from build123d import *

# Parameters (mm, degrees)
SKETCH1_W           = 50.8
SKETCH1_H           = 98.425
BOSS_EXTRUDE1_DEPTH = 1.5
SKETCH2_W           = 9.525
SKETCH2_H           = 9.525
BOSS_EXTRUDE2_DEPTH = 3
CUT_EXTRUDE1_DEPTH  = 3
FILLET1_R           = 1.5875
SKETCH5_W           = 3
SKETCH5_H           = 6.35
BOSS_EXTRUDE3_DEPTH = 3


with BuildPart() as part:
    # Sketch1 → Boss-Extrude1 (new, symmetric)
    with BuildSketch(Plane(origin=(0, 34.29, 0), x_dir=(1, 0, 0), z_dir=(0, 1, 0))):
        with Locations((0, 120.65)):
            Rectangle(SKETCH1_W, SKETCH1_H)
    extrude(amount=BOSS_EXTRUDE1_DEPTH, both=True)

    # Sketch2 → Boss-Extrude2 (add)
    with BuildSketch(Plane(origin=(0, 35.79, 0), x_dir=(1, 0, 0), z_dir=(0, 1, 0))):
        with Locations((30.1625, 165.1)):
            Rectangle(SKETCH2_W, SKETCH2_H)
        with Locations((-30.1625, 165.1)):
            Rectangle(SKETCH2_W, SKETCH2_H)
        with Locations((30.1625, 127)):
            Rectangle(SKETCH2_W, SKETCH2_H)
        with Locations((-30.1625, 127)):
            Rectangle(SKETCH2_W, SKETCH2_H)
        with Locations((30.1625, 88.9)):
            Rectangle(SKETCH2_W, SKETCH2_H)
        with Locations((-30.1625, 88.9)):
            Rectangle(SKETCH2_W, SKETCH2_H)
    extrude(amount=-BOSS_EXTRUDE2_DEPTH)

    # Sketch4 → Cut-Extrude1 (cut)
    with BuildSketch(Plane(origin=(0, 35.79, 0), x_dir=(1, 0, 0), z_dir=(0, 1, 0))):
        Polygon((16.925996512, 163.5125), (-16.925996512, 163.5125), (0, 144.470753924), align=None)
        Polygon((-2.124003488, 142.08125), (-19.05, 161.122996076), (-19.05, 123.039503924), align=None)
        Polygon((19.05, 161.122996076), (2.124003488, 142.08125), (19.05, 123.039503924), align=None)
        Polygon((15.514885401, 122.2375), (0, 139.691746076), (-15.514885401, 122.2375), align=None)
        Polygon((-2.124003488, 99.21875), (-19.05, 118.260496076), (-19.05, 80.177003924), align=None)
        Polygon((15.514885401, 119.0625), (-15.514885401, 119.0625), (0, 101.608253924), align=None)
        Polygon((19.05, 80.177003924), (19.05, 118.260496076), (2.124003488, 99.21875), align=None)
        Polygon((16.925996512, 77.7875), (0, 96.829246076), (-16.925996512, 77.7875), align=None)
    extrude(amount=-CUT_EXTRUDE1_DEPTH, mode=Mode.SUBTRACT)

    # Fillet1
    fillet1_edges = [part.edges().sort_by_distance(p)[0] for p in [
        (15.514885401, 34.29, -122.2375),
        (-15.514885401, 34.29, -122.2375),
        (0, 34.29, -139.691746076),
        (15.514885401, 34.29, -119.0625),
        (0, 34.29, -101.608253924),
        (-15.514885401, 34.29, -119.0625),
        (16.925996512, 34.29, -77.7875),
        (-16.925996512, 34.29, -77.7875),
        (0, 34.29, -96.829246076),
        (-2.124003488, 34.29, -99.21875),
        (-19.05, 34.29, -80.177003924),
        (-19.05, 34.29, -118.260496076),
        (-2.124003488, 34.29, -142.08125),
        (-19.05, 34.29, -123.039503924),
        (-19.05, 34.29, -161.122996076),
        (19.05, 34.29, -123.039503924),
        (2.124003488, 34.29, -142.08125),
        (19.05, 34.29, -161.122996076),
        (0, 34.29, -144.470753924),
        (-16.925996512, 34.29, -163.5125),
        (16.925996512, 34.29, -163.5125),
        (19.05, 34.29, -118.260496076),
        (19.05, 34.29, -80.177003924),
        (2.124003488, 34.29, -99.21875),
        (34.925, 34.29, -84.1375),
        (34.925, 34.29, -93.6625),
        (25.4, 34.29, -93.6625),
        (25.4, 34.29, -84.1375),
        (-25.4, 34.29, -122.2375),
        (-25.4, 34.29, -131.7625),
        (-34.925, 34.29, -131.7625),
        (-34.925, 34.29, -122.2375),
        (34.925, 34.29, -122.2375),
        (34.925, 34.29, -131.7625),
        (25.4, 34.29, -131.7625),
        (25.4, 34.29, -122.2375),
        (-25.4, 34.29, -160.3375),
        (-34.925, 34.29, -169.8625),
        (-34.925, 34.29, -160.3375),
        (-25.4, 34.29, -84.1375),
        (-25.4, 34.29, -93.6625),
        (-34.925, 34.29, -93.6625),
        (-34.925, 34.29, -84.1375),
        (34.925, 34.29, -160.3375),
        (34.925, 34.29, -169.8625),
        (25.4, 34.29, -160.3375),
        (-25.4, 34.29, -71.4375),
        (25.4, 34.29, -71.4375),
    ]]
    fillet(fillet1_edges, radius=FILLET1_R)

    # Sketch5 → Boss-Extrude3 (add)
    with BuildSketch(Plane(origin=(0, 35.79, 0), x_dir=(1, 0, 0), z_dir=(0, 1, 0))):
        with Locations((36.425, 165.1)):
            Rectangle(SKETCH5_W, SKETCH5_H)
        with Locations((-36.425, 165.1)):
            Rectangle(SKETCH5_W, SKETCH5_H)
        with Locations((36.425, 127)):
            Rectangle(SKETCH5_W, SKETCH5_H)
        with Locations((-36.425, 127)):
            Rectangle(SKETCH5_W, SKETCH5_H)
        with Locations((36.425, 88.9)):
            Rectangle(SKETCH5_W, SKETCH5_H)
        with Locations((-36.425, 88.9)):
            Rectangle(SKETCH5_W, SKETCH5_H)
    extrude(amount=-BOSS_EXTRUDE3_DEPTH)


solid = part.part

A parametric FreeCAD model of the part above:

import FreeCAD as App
import Part
import Sketcher

V = App.Vector
Q = App.Units.Quantity


def edges_at(feature, points):
    """Names of the edges that pass closest to the given points."""
    edges = feature.Shape.Edges
    near = lambda p: min(range(len(edges)), key=lambda i: edges[i].distToShape(Part.Vertex(*p))[0])
    return sorted({f"Edge{near(p) + 1}" for p in points})


def add_polygon(sketch, points):
    """Adds a closed chain of lines whose ends are joined by coincident constraints."""
    first, n = sketch.GeometryCount, len(points)
    for a, b in zip(points, points[1:] + points[:1]):
        sketch.addGeometry(Part.LineSegment(App.Vector(*a, 0), App.Vector(*b, 0)), False)
    for i in range(n):
        sketch.addConstraint(Sketcher.Constraint("Coincident", first + i, 2, first + (i + 1) % n, 1))

doc = App.newDocument("Part")
body = doc.addObject("PartDesign::Body", "Body")

# Sketch on XZ plane
sketch1 = body.newObject("Sketcher::SketchObject", "Sketch")
sketch1.AttachmentSupport = (doc.getObject("XZ_Plane"), [""])
sketch1.MapMode = "FlatFace"
sketch1.AttachmentOffset = App.Placement(V(0, 0, -1.35 * 25.4), App.Rotation())
add_polygon(sketch1, [(-25, -170), (-25, -71), (25, -71), (25, -170)])  # lines 0-3
sketch1.addConstraint([
    Sketcher.Constraint("Vertical", 0),
    Sketcher.Constraint("Horizontal", 1),
    Sketcher.Constraint("Vertical", 2),
    Sketcher.Constraint("Horizontal", 3),
    Sketcher.Constraint("DistanceX", 1, 1, 1, 2, Q("2 in")),
    Sketcher.Constraint("DistanceX", 0, 2, -1, 1, Q("1 in")),
    Sketcher.Constraint("DistanceY", 0, 1, 0, 2, Q("3.875 in")),
    Sketcher.Constraint("DistanceY", 0, 2, -1, 1, Q("2.8125 in")),
])
pad1 = body.newObject("PartDesign::Pad", "Pad")
pad1.Profile = sketch1
pad1.Length = 3
pad1.Midplane = True

# Sketch on XZ plane
sketch2 = body.newObject("Sketcher::SketchObject", "Sketch001")
sketch2.AttachmentSupport = (doc.getObject("XZ_Plane"), [""])
sketch2.MapMode = "FlatFace"
sketch2.AttachmentOffset = App.Placement(V(0, 0, -35.79), App.Rotation())
add_polygon(sketch2, [(25, -170), (25, -160), (35, -160), (35, -170)])  # lines 0-3
add_polygon(sketch2, [(-35, -170), (-35, -160), (-25, -160), (-25, -170)])  # lines 4-7
add_polygon(sketch2, [(25, -132), (25, -122), (35, -122), (35, -132)])  # lines 8-11
add_polygon(sketch2, [(-35, -132), (-35, -122), (-25, -122), (-25, -132)])  # lines 12-15
add_polygon(sketch2, [(25, -94), (25, -84), (35, -84), (35, -94)])  # lines 16-19
add_polygon(sketch2, [(-35, -94), (-35, -84), (-25, -84), (-25, -94)])  # lines 20-23
sketch2.addConstraint([
    Sketcher.Constraint("Vertical", 0),
    Sketcher.Constraint("Horizontal", 1),
    Sketcher.Constraint("Vertical", 2),
    Sketcher.Constraint("Horizontal", 3),
    Sketcher.Constraint("Vertical", 4),
    Sketcher.Constraint("Horizontal", 5),
    Sketcher.Constraint("Vertical", 6),
    Sketcher.Constraint("Horizontal", 7),
    Sketcher.Constraint("Vertical", 8),
    Sketcher.Constraint("Horizontal", 9),
    Sketcher.Constraint("Vertical", 10),
    Sketcher.Constraint("Horizontal", 11),
    Sketcher.Constraint("Vertical", 12),
    Sketcher.Constraint("Horizontal", 13),
    Sketcher.Constraint("Vertical", 14),
    Sketcher.Constraint("Horizontal", 15),
    Sketcher.Constraint("Vertical", 16),
    Sketcher.Constraint("Horizontal", 17),
    Sketcher.Constraint("Vertical", 18),
    Sketcher.Constraint("Horizontal", 19),
    Sketcher.Constraint("Vertical", 20),
    Sketcher.Constraint("Horizontal", 21),
    Sketcher.Constraint("Vertical", 22),
    Sketcher.Constraint("Horizontal", 23),
    Sketcher.Constraint("Symmetric", 1, 2, 4, 2, -2),
    Sketcher.Constraint("Symmetric", 3, 2, 6, 2, -2),
    Sketcher.Constraint("Symmetric", 9, 2, 12, 2, -2),
    Sketcher.Constraint("Symmetric", 11, 2, 14, 2, -2),
    Sketcher.Constraint("Symmetric", 17, 2, 20, 2, -2),
    Sketcher.Constraint("Symmetric", 19, 2, 22, 2, -2),
    Sketcher.Constraint("Vertical", 3, 2, 8, 2),
    Sketcher.Constraint("Vertical", 2, 2, 9, 2),
    Sketcher.Constraint("Vertical", 11, 2, 16, 2),
    Sketcher.Constraint("Vertical", 10, 2, 17, 2),
    Sketcher.Constraint("Equal", 23, 0),
    Sketcher.Constraint("Equal", 6, 8),
    Sketcher.Constraint("Equal", 14, 16),
    Sketcher.Constraint("DistanceX", -1, 1, 0, 2, Q("1 in")),
    Sketcher.Constraint("DistanceY", 0, 2, 8, 2, Q("1.5 in")),
    Sketcher.Constraint("DistanceY", 8, 2, 16, 2, Q("1.5 in")),
    Sketcher.Constraint("DistanceX", 1, 1, 1, 2, Q("0.375 in")),
    Sketcher.Constraint("DistanceY", 0, 2, -1, 1, Q("6.3125 in")),
])
pad2 = body.newObject("PartDesign::Pad", "Pad001")
pad2.Profile = sketch2
pad2.Length = 3

# Sketch on XZ plane
sketch3 = body.newObject("Sketcher::SketchObject", "Sketch002")
sketch3.AttachmentSupport = (doc.getObject("XZ_Plane"), [""])
sketch3.MapMode = "FlatFace"
sketch3.AttachmentOffset = App.Placement(V(0, 0, -35.79), App.Rotation())
add_polygon(sketch3, [(17, -164), (-17, -164), (0, -144)])  # lines 0-2
add_polygon(sketch3, [(-2, -142), (-19, -161), (-19, -123)])  # lines 3-5
add_polygon(sketch3, [(19, -161), (2, -142), (19, -123)])  # lines 6-8
add_polygon(sketch3, [(16, -122), (0, -140), (-16, -122)])  # lines 9-11
add_polygon(sketch3, [(-2, -99), (-19, -118), (-19, -80)])  # lines 12-14
add_polygon(sketch3, [(16, -119), (-16, -119), (0, -102)])  # lines 15-17
add_polygon(sketch3, [(19, -80), (19, -118), (2, -99)])  # lines 18-20
add_polygon(sketch3, [(17, -78), (0, -97), (-17, -78)])  # lines 21-23
sketch3.addConstraint([
    Sketcher.Constraint("Horizontal", 0),
    Sketcher.Constraint("Vertical", 4),
    Sketcher.Constraint("Vertical", 8),
    Sketcher.Constraint("Horizontal", 11),
    Sketcher.Constraint("Vertical", 13),
    Sketcher.Constraint("Horizontal", 15),
    Sketcher.Constraint("Vertical", 18),
    Sketcher.Constraint("Horizontal", 23),
    Sketcher.Constraint("Symmetric", 5, 2, 6, 2, -2),
    Sketcher.Constraint("Symmetric", 4, 2, 7, 2, -2),
    Sketcher.Constraint("Symmetric", 12, 2, 18, 2, -2),
    Sketcher.Constraint("Symmetric", 14, 2, 19, 2, -2),
    Sketcher.Constraint("PointOnObject", 1, 2, -2),
    Sketcher.Constraint("PointOnObject", 9, 2, -2),
    Sketcher.Constraint("PointOnObject", 16, 2, -2),
    Sketcher.Constraint("PointOnObject", 21, 2, -2),
    Sketcher.Constraint("Parallel", 1, 3),
    Sketcher.Constraint("Parallel", 2, 5),
    Sketcher.Constraint("Parallel", 5, 6),
    Sketcher.Constraint("Parallel", 3, 7),
    Sketcher.Constraint("Parallel", 7, 9),
    Sketcher.Constraint("Parallel", 6, 10),
    Sketcher.Constraint("Parallel", 9, 12),
    Sketcher.Constraint("Parallel", 10, 14),
    Sketcher.Constraint("Parallel", 12, 16),
    Sketcher.Constraint("Parallel", 14, 17),
    Sketcher.Constraint("Parallel", 16, 20),
    Sketcher.Constraint("Parallel", 20, 21),
    Sketcher.Constraint("Parallel", 19, 22),
    Sketcher.Constraint("Vertical", 4, 2, 12, 2),
    Sketcher.Constraint("Vertical", 5, 2, 14, 2),
    Sketcher.Constraint("Vertical", 10, 2, 15, 2),
    Sketcher.Constraint("Vertical", 0, 2, 22, 2),
    Sketcher.Constraint("Equal", 2, 3),
    Sketcher.Constraint("DistanceX", 4, 2, 7, 2, Q("1.5 in")),
    Sketcher.Constraint("DistanceY", 0, 2, -1, 1, Q("6.4375 in")),
    Sketcher.Constraint("DistanceY", 5, 2, -1, 1, Q("5.59375 in")),
    Sketcher.Constraint("DistanceY", 10, 2, -1, 1, Q("4.8125 in")),
    Sketcher.Constraint("DistanceY", 14, 2, -1, 1, Q("3.90625 in")),
    Sketcher.Constraint("DistanceY", 15, 2, -1, 1, Q("4.6875 in")),
    Sketcher.Constraint("DistanceY", 22, 2, -1, 1, Q("3.0625 in")),
    Sketcher.Constraint("DistanceY", 9, 2, 12, 2, Q("0.84375 in")),
    Sketcher.Constraint("DistanceY", 3, 2, 1, 2, Q("0.6556001 in")),
    Sketcher.Constraint("DistanceX", 10, 2, 5, 2, Q("0.5272001 in")),
])
pocket1 = body.newObject("PartDesign::Pocket", "Pocket")
pocket1.Profile = sketch3
pocket1.Length = 3
pocket1.Reversed = True
doc.recompute()

fillet = body.newObject("PartDesign::Fillet", "Fillet")
fillet.Base = (pocket1, edges_at(pocket1, [
    (15.515, 34.29, -122.237),
    (-15.515, 34.29, -122.237),
    (0, 34.29, -139.692),
    (15.515, 34.29, -119.062),
    (0, 34.29, -101.608),
    (-15.515, 34.29, -119.062),
    (16.926, 34.29, -77.787),
    (-16.926, 34.29, -77.787),
    (0, 34.29, -96.829),
    (-2.124, 34.29, -99.219),
    (-19.05, 34.29, -80.177),
    (-19.05, 34.29, -118.26),
    (-2.124, 34.29, -142.081),
    (-19.05, 34.29, -123.04),
    (-19.05, 34.29, -161.123),
    (19.05, 34.29, -123.04),
    (2.124, 34.29, -142.081),
    (19.05, 34.29, -161.123),
    (0, 34.29, -144.471),
    (-16.926, 34.29, -163.512),
    (16.926, 34.29, -163.512),
    (19.05, 34.29, -118.26),
    (19.05, 34.29, -80.177),
    (2.124, 34.29, -99.219),
    (34.925, 34.29, -84.138),
    (34.925, 34.29, -93.662),
    (25.4, 34.29, -93.662),
    (25.4, 34.29, -84.138),
    (-25.4, 34.29, -122.237),
    (-25.4, 34.29, -131.762),
    (-34.925, 34.29, -131.762),
    (-34.925, 34.29, -122.237),
    (34.925, 34.29, -122.237),
    (34.925, 34.29, -131.762),
    (25.4, 34.29, -131.762),
    (25.4, 34.29, -122.237),
    (-25.4, 34.29, -160.338),
    (-34.925, 34.29, -169.863),
    (-34.925, 34.29, -160.338),
    (-25.4, 34.29, -84.138),
    (-25.4, 34.29, -93.662),
    (-34.925, 34.29, -93.662),
    (-34.925, 34.29, -84.138),
    (34.925, 34.29, -160.338),
    (34.925, 34.29, -169.863),
    (25.4, 34.29, -160.338),
    (-25.4, 34.29, -71.438),
    (25.4, 34.29, -71.438),
]))
fillet.Radius = Q("0.0625 in")

# Sketch on XZ plane
sketch4 = body.newObject("Sketcher::SketchObject", "Sketch003")
sketch4.AttachmentSupport = (doc.getObject("XZ_Plane"), [""])
sketch4.MapMode = "FlatFace"
sketch4.AttachmentOffset = App.Placement(V(0, 0, -35.79), App.Rotation())
add_polygon(sketch4, [(34.9, -168.3), (34.9, -161.9), (37.9, -161.9), (37.9, -168.3)])  # lines 0-3
add_polygon(sketch4, [(-37.9, -168.3), (-37.9, -161.9), (-34.9, -161.9), (-34.9, -168.3)])  # lines 4-7
add_polygon(sketch4, [(34.9, -130.2), (34.9, -123.8), (37.9, -123.8), (37.9, -130.2)])  # lines 8-11
add_polygon(sketch4, [(-37.9, -130.2), (-37.9, -123.8), (-34.9, -123.8), (-34.9, -130.2)])  # lines 12-15
add_polygon(sketch4, [(34.9, -92.1), (34.9, -85.7), (37.9, -85.7), (37.9, -92.1)])  # lines 16-19
add_polygon(sketch4, [(-37.9, -92.1), (-37.9, -85.7), (-34.9, -85.7), (-34.9, -92.1)])  # lines 20-23
sketch4.addConstraint([
    Sketcher.Constraint("Vertical", 0),
    Sketcher.Constraint("Horizontal", 1),
    Sketcher.Constraint("Vertical", 2),
    Sketcher.Constraint("Horizontal", 3),
    Sketcher.Constraint("Vertical", 4),
    Sketcher.Constraint("Horizontal", 5),
    Sketcher.Constraint("Vertical", 6),
    Sketcher.Constraint("Horizontal", 7),
    Sketcher.Constraint("Vertical", 8),
    Sketcher.Constraint("Horizontal", 9),
    Sketcher.Constraint("Vertical", 10),
    Sketcher.Constraint("Horizontal", 11),
    Sketcher.Constraint("Vertical", 12),
    Sketcher.Constraint("Horizontal", 13),
    Sketcher.Constraint("Vertical", 14),
    Sketcher.Constraint("Horizontal", 15),
    Sketcher.Constraint("Vertical", 16),
    Sketcher.Constraint("Horizontal", 17),
    Sketcher.Constraint("Vertical", 18),
    Sketcher.Constraint("Horizontal", 19),
    Sketcher.Constraint("Vertical", 20),
    Sketcher.Constraint("Horizontal", 21),
    Sketcher.Constraint("Vertical", 22),
    Sketcher.Constraint("Horizontal", 23),
    Sketcher.Constraint("Symmetric", 1, 2, 4, 2, -2),
    Sketcher.Constraint("Symmetric", 3, 2, 6, 2, -2),
    Sketcher.Constraint("Symmetric", 9, 2, 12, 2, -2),
    Sketcher.Constraint("Symmetric", 11, 2, 14, 2, -2),
    Sketcher.Constraint("Symmetric", 17, 2, 20, 2, -2),
    Sketcher.Constraint("Symmetric", 19, 2, 22, 2, -2),
    Sketcher.Constraint("Vertical", 3, 2, 8, 2),
    Sketcher.Constraint("Vertical", 2, 2, 9, 2),
    Sketcher.Constraint("Vertical", 11, 2, 16, 2),
    Sketcher.Constraint("Vertical", 10, 2, 17, 2),
    Sketcher.Constraint("Equal", 6, 8),
    Sketcher.Constraint("Equal", 14, 16),
    Sketcher.Constraint("DistanceY", 0, 2, 16, 2, Q("3 in")),
    Sketcher.Constraint("DistanceY", 0, 1, 0, 2, Q("0.25 in")),
    Sketcher.Constraint("DistanceY", 0, 2, 8, 2, Q("1.5 in")),
    Sketcher.Constraint("DistanceX", 5, 2, 0, 2, Q("2.75 in")),
    Sketcher.Constraint("DistanceY", 0, 2, -1, 1, Q("6.375 in")),
    Sketcher.Constraint("DistanceX", 1, 1, 1, 2, 3.0),
])
pad3 = body.newObject("PartDesign::Pad", "Pad002")
pad3.Profile = sketch4
pad3.Length = 3

doc.recompute()
